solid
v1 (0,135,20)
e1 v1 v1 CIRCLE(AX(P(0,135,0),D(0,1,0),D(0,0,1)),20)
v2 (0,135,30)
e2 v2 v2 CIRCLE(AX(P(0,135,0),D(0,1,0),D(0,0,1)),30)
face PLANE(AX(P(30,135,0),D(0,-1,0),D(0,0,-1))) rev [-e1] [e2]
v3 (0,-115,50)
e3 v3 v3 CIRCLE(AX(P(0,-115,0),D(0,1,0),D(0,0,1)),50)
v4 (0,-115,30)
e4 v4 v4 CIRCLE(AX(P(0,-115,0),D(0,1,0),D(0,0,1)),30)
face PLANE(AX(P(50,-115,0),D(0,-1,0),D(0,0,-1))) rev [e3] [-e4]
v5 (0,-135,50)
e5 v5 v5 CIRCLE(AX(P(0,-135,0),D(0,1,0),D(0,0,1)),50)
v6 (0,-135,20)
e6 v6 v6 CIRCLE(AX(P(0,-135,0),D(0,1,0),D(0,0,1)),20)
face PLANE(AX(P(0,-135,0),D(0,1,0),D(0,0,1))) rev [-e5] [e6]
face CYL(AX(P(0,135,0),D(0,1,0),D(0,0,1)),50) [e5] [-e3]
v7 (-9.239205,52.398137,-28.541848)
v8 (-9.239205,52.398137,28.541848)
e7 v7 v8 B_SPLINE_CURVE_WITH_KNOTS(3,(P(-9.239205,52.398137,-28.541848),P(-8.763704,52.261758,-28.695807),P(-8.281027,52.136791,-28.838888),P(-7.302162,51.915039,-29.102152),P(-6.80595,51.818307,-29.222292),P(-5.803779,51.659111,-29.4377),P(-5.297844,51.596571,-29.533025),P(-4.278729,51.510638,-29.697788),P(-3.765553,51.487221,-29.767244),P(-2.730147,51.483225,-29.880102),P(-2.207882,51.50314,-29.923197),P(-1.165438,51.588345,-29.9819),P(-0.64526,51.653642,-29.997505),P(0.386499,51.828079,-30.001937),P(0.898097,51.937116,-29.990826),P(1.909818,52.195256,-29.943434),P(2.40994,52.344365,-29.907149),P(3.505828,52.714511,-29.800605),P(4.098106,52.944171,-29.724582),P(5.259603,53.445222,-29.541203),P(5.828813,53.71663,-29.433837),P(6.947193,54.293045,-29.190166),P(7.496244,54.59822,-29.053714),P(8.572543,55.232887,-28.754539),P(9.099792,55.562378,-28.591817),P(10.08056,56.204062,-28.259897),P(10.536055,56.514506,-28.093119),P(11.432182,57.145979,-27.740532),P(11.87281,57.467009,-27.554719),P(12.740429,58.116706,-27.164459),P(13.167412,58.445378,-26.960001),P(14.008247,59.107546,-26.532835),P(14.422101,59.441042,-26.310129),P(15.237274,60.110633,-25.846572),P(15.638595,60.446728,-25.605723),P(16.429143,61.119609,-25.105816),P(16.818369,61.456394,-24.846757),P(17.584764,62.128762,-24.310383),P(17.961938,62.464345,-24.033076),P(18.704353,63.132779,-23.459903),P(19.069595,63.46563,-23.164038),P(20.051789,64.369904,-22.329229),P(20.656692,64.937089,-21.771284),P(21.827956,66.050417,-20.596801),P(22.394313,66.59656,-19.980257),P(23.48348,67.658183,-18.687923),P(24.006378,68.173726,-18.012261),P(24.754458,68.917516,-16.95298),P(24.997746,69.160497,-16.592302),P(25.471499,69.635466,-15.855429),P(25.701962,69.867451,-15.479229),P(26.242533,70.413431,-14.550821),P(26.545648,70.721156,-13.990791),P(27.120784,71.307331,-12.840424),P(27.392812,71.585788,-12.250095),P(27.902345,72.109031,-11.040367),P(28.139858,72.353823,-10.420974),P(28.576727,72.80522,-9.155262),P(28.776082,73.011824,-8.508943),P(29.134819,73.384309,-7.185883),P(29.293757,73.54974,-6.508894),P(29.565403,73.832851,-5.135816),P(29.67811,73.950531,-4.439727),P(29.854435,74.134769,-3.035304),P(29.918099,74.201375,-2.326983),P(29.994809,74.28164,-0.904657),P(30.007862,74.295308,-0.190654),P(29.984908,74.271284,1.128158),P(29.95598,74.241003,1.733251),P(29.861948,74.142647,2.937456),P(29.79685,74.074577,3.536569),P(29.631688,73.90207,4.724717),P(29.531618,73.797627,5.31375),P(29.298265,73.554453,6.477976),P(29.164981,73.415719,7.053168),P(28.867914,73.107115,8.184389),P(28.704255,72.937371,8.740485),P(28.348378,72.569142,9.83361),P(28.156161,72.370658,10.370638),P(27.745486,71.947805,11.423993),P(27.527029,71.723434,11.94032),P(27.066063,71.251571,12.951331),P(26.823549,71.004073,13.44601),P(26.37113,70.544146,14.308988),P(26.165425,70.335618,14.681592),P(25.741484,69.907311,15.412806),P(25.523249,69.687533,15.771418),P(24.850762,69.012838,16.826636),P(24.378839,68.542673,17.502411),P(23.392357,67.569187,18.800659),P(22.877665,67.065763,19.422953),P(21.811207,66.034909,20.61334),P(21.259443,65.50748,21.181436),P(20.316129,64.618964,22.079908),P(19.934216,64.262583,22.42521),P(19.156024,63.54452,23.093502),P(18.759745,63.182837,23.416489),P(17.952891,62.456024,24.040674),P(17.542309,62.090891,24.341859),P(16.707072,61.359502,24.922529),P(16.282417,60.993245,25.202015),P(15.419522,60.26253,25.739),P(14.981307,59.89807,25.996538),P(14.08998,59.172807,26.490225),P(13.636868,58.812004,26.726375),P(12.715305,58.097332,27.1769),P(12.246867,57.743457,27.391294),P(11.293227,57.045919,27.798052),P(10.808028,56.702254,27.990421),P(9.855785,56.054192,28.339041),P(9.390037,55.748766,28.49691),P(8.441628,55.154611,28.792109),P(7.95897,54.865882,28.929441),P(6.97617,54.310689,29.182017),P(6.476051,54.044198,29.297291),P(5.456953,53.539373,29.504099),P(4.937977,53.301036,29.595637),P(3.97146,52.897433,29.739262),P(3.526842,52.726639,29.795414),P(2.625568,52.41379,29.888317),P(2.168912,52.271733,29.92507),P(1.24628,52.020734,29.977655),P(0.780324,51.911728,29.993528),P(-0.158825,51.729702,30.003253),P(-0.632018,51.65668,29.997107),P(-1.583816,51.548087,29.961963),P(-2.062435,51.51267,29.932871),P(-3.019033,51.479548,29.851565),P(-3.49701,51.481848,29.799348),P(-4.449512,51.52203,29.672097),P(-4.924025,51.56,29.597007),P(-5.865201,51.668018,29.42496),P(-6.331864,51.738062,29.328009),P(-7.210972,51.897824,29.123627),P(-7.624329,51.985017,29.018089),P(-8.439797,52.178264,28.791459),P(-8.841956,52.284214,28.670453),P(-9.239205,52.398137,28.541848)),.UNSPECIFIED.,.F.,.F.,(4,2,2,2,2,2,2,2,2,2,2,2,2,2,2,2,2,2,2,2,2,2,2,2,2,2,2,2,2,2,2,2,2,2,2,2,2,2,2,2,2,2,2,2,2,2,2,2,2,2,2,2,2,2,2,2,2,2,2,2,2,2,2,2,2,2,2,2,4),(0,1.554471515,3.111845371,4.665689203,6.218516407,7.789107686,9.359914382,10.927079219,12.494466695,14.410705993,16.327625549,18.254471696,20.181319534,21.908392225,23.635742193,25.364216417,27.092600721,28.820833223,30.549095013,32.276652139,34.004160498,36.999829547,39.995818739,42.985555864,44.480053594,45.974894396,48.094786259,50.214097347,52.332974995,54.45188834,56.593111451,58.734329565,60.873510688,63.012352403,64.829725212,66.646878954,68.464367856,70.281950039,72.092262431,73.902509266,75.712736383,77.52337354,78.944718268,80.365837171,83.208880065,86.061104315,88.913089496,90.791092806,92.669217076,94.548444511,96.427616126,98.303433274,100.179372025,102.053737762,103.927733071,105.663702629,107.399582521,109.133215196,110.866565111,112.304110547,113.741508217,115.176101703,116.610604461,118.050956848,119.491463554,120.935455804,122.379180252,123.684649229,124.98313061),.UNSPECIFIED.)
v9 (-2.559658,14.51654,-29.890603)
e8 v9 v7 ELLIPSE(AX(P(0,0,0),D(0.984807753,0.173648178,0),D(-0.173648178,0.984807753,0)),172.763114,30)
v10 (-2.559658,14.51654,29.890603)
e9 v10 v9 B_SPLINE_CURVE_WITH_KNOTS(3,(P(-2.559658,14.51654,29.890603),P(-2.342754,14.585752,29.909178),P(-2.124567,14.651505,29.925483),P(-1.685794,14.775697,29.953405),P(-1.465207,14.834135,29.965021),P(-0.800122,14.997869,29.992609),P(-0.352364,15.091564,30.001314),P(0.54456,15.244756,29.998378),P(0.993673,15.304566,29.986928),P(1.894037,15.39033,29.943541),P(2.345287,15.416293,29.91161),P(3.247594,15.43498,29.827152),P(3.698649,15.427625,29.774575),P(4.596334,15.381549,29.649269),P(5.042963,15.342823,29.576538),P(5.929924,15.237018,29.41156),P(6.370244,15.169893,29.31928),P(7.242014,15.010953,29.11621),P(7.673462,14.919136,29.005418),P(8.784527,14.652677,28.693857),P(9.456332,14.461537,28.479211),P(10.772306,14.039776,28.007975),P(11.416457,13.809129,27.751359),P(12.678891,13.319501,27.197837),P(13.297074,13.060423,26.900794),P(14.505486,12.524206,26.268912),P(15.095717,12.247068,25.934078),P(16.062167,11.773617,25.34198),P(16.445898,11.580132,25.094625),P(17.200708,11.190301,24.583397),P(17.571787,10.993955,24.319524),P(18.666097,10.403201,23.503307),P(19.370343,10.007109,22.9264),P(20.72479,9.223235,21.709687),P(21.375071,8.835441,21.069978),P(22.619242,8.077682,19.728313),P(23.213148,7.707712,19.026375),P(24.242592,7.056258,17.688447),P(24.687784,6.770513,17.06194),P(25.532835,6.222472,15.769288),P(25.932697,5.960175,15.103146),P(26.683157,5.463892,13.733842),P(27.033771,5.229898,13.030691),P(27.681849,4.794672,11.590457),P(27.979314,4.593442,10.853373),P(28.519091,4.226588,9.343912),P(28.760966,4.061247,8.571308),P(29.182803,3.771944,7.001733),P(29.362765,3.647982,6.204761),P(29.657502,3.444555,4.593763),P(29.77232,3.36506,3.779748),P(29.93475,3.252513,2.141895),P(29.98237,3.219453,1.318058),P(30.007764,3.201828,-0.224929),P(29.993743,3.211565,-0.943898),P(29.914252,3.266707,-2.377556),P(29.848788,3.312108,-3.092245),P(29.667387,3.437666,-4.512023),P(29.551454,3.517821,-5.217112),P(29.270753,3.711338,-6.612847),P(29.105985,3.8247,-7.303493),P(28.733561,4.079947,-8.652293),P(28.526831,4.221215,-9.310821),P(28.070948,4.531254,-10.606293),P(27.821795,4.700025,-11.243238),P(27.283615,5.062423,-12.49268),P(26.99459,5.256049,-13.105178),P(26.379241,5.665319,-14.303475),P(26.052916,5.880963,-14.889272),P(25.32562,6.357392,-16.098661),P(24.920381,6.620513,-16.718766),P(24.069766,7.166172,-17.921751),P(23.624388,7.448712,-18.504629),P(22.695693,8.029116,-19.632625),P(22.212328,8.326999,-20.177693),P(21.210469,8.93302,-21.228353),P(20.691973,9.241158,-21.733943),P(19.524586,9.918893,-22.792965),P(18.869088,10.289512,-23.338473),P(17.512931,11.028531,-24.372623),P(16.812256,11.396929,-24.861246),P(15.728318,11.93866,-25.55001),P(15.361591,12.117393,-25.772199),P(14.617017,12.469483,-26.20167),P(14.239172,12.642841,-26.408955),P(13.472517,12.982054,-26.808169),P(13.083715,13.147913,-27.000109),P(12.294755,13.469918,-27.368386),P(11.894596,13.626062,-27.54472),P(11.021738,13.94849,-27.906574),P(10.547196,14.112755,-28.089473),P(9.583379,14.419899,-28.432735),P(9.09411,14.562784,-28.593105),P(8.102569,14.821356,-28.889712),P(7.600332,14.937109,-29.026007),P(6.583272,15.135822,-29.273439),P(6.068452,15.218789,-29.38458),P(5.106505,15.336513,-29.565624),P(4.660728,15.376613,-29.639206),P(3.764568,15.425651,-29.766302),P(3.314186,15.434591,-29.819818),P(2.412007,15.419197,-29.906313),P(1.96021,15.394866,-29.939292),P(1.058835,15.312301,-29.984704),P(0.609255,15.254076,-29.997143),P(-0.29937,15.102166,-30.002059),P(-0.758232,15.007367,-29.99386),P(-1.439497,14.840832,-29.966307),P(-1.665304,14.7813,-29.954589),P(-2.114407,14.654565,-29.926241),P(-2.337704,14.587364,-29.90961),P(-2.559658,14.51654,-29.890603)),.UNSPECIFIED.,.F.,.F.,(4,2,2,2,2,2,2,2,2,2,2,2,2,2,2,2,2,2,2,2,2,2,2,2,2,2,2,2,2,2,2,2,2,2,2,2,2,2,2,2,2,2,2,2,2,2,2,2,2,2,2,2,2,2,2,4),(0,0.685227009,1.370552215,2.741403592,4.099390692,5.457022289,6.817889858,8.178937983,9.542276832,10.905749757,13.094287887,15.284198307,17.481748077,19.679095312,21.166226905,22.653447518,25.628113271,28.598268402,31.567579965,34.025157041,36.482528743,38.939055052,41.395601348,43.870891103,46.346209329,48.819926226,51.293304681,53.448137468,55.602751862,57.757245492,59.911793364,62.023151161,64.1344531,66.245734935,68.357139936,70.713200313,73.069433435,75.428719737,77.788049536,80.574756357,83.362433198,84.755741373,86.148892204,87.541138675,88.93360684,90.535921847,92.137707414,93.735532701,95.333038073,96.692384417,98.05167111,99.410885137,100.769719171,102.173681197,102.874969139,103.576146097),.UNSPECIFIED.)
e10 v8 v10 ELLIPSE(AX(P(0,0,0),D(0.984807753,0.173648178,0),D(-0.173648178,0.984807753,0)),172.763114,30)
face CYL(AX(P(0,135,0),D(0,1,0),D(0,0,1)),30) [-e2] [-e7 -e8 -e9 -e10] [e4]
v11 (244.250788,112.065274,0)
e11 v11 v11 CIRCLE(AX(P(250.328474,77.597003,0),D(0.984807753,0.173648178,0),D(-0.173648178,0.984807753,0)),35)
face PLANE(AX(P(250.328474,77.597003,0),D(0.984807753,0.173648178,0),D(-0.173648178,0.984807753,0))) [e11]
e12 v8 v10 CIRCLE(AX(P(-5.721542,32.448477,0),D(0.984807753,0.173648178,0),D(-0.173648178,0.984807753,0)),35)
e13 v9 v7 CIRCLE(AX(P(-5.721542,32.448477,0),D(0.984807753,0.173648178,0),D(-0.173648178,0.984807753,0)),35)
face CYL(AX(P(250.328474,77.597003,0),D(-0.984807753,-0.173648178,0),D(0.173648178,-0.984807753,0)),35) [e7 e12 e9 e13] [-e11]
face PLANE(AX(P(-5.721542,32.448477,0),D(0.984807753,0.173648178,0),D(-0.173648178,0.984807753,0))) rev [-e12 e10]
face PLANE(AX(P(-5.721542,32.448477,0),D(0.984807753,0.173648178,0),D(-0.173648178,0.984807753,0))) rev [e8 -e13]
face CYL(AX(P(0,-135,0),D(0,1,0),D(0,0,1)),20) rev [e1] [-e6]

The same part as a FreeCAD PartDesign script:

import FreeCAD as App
import Part
import Sketcher
Q = App.Units.Quantity


def add_polygon(sketch, points):
    """Adds a closed chain of lines whose ends are joined by coincident constraints."""
    first, n = sketch.GeometryCount, len(points)
    for a, b in zip(points, points[1:] + points[:1]):
        sketch.addGeometry(Part.LineSegment(App.Vector(*a, 0), App.Vector(*b, 0)), False)
    for i in range(n):
        sketch.addConstraint(Sketcher.Constraint("Coincident", first + i, 2, first + (i + 1) % n, 1))

doc = App.newDocument("Part")
body = doc.addObject("PartDesign::Body", "Body")

# Sketch on XY plane
sketch1 = body.newObject("Sketcher::SketchObject", "Sketch")
sketch1.AttachmentSupport = (doc.getObject("XY_Plane"), [""])
sketch1.MapMode = "FlatFace"
add_polygon(sketch1, [(0, 135), (0, -135), (50, -135), (50, -115), (30, -115), (30, 135)])  # lines 0-5
sketch1.addConstraint(Sketcher.Constraint("Vertical", 0))
sketch1.addConstraint(Sketcher.Constraint("Horizontal", 1))
sketch1.addConstraint(Sketcher.Constraint("Vertical", 2))
sketch1.addConstraint(Sketcher.Constraint("Horizontal", 3))
sketch1.addConstraint(Sketcher.Constraint("Vertical", 4))
sketch1.addConstraint(Sketcher.Constraint("Horizontal", 5))
sketch1.addConstraint(Sketcher.Constraint("Symmetric", 0, 2, 5, 2, -1, 1))
sketch1.addConstraint(Sketcher.Constraint("Equal", 3, 2))
sketch1.addConstraint(Sketcher.Constraint("DistanceX", 1, 1, 1, 2, Q("50 mm")))
sketch1.addConstraint(Sketcher.Constraint("DistanceX", 3, 2, 3, 1, Q("20 mm")))
sketch1.addConstraint(Sketcher.Constraint("DistanceY", 0, 2, 0, 1, Q("270 mm")))
revolution = body.newObject("PartDesign::Revolution", "Revolution")
revolution.Profile = sketch1
revolution.ReferenceAxis = (sketch1, ["V_Axis"])
revolution.Angle = 360

# Sketch on an angled plane
sketch2 = body.newObject("Sketcher::SketchObject", "Sketch001")
sketch2.Placement = App.Placement(App.Vector(0, 0, 0), App.Rotation(App.Vector(0, 0, 1), App.Vector(0.173648178, -0.984807753, 0), App.Vector(0.984807753, 0.173648178, 0), "ZXY"))
sketch2.addGeometry(Part.Circle(App.Vector(0, -33, 0), App.Vector(0, 0, 1), 35), False)
sketch2.addConstraint(Sketcher.Constraint("PointOnObject", 0, 3, -2))
sketch2.addConstraint(Sketcher.Constraint("Diameter", 0, Q("70 mm")))
sketch2.addConstraint(Sketcher.Constraint("DistanceY", 0, 3, -1, 1, Q("32.949047 mm")))
pad1 = body.newObject("PartDesign::Pad", "Pad")
pad1.Profile = sketch2
pad1.Length = 260

# Sketch on XZ plane
sketch3 = body.newObject("Sketcher::SketchObject", "Sketch002")
sketch3.AttachmentSupport = (doc.getObject("XZ_Plane"), [""])
sketch3.MapMode = "FlatFace"
sketch3.AttachmentOffset = App.Placement(App.Vector(0, 0, -135), App.Rotation())
sketch3.addGeometry(Part.Circle(App.Vector(0, 0, 0), App.Vector(0, 0, 1), 20), False)
sketch3.addConstraint(Sketcher.Constraint("Coincident", 0, 3, -1, 1))
sketch3.addConstraint(Sketcher.Constraint("Diameter", 0, Q("40 mm")))
pocket1 = body.newObject("PartDesign::Pocket", "Pocket")
pocket1.Profile = sketch3
pocket1.Type = "ThroughAll"
pocket1.Reversed = True

doc.recompute()
